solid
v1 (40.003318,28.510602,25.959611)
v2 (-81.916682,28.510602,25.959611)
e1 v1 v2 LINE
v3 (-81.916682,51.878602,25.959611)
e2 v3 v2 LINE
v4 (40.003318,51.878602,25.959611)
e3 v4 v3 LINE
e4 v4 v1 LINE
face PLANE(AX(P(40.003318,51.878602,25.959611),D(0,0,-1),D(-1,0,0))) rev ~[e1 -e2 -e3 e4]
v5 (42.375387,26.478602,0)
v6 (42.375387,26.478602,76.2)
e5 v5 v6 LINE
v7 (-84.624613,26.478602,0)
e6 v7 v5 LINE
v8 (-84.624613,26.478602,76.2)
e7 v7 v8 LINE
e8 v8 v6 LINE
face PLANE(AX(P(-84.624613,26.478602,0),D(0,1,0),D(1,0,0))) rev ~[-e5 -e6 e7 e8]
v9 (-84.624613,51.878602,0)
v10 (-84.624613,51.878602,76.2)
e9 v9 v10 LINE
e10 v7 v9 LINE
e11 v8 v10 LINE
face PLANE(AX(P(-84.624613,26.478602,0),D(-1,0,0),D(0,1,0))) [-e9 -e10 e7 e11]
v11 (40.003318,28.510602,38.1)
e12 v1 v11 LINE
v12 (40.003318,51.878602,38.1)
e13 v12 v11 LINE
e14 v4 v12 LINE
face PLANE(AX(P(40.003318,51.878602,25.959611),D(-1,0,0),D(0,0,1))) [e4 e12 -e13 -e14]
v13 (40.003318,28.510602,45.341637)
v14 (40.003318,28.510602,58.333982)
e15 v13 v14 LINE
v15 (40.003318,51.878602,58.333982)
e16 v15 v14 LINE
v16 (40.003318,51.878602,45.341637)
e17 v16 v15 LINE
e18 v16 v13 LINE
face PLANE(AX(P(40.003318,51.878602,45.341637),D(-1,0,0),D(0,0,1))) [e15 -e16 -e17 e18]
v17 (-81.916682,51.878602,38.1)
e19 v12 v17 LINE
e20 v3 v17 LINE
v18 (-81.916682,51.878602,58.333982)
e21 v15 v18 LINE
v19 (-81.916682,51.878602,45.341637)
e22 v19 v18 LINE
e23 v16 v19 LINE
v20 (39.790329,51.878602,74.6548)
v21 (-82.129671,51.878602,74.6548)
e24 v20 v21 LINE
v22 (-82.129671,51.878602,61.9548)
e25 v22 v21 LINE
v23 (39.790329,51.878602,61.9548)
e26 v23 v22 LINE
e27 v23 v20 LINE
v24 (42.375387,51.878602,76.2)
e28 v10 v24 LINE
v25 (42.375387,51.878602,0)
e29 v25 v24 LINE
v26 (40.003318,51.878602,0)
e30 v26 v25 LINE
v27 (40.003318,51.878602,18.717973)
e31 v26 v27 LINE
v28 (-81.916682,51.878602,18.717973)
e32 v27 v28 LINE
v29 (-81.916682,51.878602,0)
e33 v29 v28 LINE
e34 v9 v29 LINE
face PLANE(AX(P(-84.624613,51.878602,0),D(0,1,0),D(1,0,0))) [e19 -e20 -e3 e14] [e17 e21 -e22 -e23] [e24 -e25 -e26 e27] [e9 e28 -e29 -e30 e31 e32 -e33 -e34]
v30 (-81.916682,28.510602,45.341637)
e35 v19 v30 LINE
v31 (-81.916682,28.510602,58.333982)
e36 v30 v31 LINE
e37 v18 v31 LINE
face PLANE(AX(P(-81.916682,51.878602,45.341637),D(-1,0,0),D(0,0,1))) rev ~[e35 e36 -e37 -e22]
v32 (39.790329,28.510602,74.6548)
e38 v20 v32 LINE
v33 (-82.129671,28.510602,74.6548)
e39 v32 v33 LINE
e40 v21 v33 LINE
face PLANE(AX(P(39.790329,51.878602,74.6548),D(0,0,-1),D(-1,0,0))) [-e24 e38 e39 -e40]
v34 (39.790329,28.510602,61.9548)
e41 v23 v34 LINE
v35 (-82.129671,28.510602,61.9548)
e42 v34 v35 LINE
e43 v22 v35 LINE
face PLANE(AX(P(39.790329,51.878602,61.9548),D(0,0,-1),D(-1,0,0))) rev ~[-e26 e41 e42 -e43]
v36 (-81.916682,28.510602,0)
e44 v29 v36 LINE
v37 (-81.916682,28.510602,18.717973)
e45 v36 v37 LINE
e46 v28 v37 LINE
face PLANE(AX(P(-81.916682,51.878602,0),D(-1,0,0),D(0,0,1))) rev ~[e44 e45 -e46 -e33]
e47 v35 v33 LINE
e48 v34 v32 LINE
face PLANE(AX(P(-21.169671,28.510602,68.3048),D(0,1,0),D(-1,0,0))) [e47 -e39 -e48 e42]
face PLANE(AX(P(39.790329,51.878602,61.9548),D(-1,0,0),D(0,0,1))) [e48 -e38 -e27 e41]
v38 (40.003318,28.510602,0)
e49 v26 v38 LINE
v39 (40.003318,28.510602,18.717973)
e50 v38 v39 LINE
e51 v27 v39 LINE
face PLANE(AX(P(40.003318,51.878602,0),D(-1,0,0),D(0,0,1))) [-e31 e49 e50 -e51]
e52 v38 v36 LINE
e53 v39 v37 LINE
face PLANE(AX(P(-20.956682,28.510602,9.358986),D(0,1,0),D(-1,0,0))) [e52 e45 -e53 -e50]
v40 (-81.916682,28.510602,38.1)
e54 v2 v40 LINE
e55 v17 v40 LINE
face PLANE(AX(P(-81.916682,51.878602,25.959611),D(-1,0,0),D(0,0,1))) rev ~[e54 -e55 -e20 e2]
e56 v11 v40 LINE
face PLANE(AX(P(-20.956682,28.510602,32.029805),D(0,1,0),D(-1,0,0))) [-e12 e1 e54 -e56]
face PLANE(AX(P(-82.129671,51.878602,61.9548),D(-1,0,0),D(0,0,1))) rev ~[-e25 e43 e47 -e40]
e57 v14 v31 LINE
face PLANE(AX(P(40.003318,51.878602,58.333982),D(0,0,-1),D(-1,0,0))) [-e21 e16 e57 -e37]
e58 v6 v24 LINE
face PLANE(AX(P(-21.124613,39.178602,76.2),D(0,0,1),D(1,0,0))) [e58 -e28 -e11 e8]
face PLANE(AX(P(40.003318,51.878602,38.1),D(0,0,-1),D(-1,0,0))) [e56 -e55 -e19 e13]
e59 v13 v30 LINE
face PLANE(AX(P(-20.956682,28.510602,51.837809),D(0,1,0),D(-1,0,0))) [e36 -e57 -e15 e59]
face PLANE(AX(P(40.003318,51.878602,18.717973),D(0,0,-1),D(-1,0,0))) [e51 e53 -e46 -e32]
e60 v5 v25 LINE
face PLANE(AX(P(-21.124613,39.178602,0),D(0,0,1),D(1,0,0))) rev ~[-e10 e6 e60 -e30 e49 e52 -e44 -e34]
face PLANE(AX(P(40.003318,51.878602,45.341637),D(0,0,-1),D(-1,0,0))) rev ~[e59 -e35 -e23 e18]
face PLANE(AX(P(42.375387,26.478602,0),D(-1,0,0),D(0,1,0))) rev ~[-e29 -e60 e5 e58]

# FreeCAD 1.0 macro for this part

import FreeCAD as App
import Part
import Sketcher
from FreeCAD import Vector
Q = App.Units.Quantity


def add_polygon(sketch, points):
    """Adds a closed chain of lines whose ends are joined by coincident constraints."""
    first, n = sketch.GeometryCount, len(points)
    for a, b in zip(points, points[1:] + points[:1]):
        sketch.addGeometry(Part.LineSegment(App.Vector(*a, 0), App.Vector(*b, 0)), False)
    for i in range(n):
        sketch.addConstraint(Sketcher.Constraint("Coincident", first + i, 2, first + (i + 1) % n, 1))

doc = App.newDocument("Part")
body = doc.addObject("PartDesign::Body", "Body")

# Sketch on XY plane
sketch1 = body.newObject("Sketcher::SketchObject", "Sketch")
sketch1.AttachmentSupport = (doc.getObject("XY_Plane"), [""])
sketch1.MapMode = "FlatFace"
add_polygon(sketch1, [(-84.624613, 51.878602), (-84.624613, 26.478602), (42.375387, 26.478602), (42.375387, 51.878602)])  # lines 0-3
sketch1.addConstraint(Sketcher.Constraint("Vertical", 0))
sketch1.addConstraint(Sketcher.Constraint("Horizontal", 1))
sketch1.addConstraint(Sketcher.Constraint("Vertical", 2))
sketch1.addConstraint(Sketcher.Constraint("Horizontal", 3))
sketch1.addConstraint(Sketcher.Constraint("DistanceX", 1, 1, 1, 2, Q("5 in")))
sketch1.addConstraint(Sketcher.Constraint("DistanceY", 0, 2, 0, 1, Q("1 in")))
sketch1.addConstraint(Sketcher.Constraint("DistanceX", 0, 2, -1, 1, 84.624613))
sketch1.addConstraint(Sketcher.Constraint("DistanceY", -1, 1, 0, 2, 26.478602))
pad1 = body.newObject("PartDesign::Pad", "Pad")
pad1.Profile = sketch1
pad1.Length = Q("3 in")

# Sketch on XZ plane
sketch2 = body.newObject("Sketcher::SketchObject", "Sketch001")
sketch2.AttachmentSupport = (doc.getObject("XZ_Plane"), [""])
sketch2.MapMode = "FlatFace"
sketch2.AttachmentOffset = App.Placement(Vector(0, 0, -51.878602), App.Rotation())
add_polygon(sketch2, [(39.790329, 74.6548), (39.790329, 61.9548), (-82.129671, 61.9548), (-82.129671, 74.6548)])  # lines 0-3
add_polygon(sketch2, [(40.003318, 58.333982), (40.003318, 45.341637), (-81.916682, 45.341637), (-81.916682, 58.333982)])  # lines 4-7
add_polygon(sketch2, [(40.003318, 38.1), (40.003318, 25.959611), (-81.916682, 25.959611), (-81.916682, 38.1)])  # lines 8-11
add_polygon(sketch2, [(40.003318, 18.717973), (40.003318, 0), (-81.916682, 0), (-81.916682, 18.717973)])  # lines 12-15
sketch2.addConstraint(Sketcher.Constraint("Vertical", 0))
sketch2.addConstraint(Sketcher.Constraint("Horizontal", 1))
sketch2.addConstraint(Sketcher.Constraint("Vertical", 2))
sketch2.addConstraint(Sketcher.Constraint("Horizontal", 3))
sketch2.addConstraint(Sketcher.Constraint("Vertical", 4))
sketch2.addConstraint(Sketcher.Constraint("Horizontal", 5))
sketch2.addConstraint(Sketcher.Constraint("Vertical", 6))
sketch2.addConstraint(Sketcher.Constraint("Horizontal", 7))
sketch2.addConstraint(Sketcher.Constraint("Vertical", 8))
sketch2.addConstraint(Sketcher.Constraint("Horizontal", 9))
sketch2.addConstraint(Sketcher.Constraint("Vertical", 10))
sketch2.addConstraint(Sketcher.Constraint("Horizontal", 11))
sketch2.addConstraint(Sketcher.Constraint("Vertical", 12))
sketch2.addConstraint(Sketcher.Constraint("Horizontal", 13))
sketch2.addConstraint(Sketcher.Constraint("Vertical", 14))
sketch2.addConstraint(Sketcher.Constraint("Horizontal", 15))
sketch2.addConstraint(Sketcher.Constraint("PointOnObject", 12, 2, -1))
sketch2.addConstraint(Sketcher.Constraint("Vertical", 7, 2, 8, 2))
sketch2.addConstraint(Sketcher.Constraint("Vertical", 6, 2, 9, 2))
sketch2.addConstraint(Sketcher.Constraint("Vertical", 11, 2, 12, 2))
sketch2.addConstraint(Sketcher.Constraint("Vertical", 10, 2, 13, 2))
sketch2.addConstraint(Sketcher.Constraint("Equal", 3, 5))
sketch2.addConstraint(Sketcher.Constraint("DistanceX", 1, 2, 1, 1, Q("4.8 in")))
sketch2.addConstraint(Sketcher.Constraint("DistanceY", 0, 2, 0, 1, Q("0.5 in")))
sketch2.addConstraint(Sketcher.Constraint("DistanceY", -1, 1, 10, 2, Q("1.5 in")))
sketch2.addConstraint(Sketcher.Constraint("DistanceY", 8, 2, 8, 1, 12.140389))
sketch2.addConstraint(Sketcher.Constraint("DistanceY", -1, 1, 0, 2, 61.9548))
sketch2.addConstraint(Sketcher.Constraint("DistanceY", 4, 2, 4, 1, 12.992345))
sketch2.addConstraint(Sketcher.Constraint("DistanceY", 12, 2, 12, 1, 18.717973))
sketch2.addConstraint(Sketcher.Constraint("DistanceX", -1, 1, 0, 2, 39.790329))
sketch2.addConstraint(Sketcher.Constraint("DistanceX", -1, 1, 4, 2, 40.003318))
sketch2.addConstraint(Sketcher.Constraint("DistanceY", -1, 1, 6, 2, 58.333982))
pocket1 = body.newObject("PartDesign::Pocket", "Pocket")
pocket1.Profile = sketch2
pocket1.Length = Q("0.92 in")
pocket1.Reversed = True

doc.recompute()
